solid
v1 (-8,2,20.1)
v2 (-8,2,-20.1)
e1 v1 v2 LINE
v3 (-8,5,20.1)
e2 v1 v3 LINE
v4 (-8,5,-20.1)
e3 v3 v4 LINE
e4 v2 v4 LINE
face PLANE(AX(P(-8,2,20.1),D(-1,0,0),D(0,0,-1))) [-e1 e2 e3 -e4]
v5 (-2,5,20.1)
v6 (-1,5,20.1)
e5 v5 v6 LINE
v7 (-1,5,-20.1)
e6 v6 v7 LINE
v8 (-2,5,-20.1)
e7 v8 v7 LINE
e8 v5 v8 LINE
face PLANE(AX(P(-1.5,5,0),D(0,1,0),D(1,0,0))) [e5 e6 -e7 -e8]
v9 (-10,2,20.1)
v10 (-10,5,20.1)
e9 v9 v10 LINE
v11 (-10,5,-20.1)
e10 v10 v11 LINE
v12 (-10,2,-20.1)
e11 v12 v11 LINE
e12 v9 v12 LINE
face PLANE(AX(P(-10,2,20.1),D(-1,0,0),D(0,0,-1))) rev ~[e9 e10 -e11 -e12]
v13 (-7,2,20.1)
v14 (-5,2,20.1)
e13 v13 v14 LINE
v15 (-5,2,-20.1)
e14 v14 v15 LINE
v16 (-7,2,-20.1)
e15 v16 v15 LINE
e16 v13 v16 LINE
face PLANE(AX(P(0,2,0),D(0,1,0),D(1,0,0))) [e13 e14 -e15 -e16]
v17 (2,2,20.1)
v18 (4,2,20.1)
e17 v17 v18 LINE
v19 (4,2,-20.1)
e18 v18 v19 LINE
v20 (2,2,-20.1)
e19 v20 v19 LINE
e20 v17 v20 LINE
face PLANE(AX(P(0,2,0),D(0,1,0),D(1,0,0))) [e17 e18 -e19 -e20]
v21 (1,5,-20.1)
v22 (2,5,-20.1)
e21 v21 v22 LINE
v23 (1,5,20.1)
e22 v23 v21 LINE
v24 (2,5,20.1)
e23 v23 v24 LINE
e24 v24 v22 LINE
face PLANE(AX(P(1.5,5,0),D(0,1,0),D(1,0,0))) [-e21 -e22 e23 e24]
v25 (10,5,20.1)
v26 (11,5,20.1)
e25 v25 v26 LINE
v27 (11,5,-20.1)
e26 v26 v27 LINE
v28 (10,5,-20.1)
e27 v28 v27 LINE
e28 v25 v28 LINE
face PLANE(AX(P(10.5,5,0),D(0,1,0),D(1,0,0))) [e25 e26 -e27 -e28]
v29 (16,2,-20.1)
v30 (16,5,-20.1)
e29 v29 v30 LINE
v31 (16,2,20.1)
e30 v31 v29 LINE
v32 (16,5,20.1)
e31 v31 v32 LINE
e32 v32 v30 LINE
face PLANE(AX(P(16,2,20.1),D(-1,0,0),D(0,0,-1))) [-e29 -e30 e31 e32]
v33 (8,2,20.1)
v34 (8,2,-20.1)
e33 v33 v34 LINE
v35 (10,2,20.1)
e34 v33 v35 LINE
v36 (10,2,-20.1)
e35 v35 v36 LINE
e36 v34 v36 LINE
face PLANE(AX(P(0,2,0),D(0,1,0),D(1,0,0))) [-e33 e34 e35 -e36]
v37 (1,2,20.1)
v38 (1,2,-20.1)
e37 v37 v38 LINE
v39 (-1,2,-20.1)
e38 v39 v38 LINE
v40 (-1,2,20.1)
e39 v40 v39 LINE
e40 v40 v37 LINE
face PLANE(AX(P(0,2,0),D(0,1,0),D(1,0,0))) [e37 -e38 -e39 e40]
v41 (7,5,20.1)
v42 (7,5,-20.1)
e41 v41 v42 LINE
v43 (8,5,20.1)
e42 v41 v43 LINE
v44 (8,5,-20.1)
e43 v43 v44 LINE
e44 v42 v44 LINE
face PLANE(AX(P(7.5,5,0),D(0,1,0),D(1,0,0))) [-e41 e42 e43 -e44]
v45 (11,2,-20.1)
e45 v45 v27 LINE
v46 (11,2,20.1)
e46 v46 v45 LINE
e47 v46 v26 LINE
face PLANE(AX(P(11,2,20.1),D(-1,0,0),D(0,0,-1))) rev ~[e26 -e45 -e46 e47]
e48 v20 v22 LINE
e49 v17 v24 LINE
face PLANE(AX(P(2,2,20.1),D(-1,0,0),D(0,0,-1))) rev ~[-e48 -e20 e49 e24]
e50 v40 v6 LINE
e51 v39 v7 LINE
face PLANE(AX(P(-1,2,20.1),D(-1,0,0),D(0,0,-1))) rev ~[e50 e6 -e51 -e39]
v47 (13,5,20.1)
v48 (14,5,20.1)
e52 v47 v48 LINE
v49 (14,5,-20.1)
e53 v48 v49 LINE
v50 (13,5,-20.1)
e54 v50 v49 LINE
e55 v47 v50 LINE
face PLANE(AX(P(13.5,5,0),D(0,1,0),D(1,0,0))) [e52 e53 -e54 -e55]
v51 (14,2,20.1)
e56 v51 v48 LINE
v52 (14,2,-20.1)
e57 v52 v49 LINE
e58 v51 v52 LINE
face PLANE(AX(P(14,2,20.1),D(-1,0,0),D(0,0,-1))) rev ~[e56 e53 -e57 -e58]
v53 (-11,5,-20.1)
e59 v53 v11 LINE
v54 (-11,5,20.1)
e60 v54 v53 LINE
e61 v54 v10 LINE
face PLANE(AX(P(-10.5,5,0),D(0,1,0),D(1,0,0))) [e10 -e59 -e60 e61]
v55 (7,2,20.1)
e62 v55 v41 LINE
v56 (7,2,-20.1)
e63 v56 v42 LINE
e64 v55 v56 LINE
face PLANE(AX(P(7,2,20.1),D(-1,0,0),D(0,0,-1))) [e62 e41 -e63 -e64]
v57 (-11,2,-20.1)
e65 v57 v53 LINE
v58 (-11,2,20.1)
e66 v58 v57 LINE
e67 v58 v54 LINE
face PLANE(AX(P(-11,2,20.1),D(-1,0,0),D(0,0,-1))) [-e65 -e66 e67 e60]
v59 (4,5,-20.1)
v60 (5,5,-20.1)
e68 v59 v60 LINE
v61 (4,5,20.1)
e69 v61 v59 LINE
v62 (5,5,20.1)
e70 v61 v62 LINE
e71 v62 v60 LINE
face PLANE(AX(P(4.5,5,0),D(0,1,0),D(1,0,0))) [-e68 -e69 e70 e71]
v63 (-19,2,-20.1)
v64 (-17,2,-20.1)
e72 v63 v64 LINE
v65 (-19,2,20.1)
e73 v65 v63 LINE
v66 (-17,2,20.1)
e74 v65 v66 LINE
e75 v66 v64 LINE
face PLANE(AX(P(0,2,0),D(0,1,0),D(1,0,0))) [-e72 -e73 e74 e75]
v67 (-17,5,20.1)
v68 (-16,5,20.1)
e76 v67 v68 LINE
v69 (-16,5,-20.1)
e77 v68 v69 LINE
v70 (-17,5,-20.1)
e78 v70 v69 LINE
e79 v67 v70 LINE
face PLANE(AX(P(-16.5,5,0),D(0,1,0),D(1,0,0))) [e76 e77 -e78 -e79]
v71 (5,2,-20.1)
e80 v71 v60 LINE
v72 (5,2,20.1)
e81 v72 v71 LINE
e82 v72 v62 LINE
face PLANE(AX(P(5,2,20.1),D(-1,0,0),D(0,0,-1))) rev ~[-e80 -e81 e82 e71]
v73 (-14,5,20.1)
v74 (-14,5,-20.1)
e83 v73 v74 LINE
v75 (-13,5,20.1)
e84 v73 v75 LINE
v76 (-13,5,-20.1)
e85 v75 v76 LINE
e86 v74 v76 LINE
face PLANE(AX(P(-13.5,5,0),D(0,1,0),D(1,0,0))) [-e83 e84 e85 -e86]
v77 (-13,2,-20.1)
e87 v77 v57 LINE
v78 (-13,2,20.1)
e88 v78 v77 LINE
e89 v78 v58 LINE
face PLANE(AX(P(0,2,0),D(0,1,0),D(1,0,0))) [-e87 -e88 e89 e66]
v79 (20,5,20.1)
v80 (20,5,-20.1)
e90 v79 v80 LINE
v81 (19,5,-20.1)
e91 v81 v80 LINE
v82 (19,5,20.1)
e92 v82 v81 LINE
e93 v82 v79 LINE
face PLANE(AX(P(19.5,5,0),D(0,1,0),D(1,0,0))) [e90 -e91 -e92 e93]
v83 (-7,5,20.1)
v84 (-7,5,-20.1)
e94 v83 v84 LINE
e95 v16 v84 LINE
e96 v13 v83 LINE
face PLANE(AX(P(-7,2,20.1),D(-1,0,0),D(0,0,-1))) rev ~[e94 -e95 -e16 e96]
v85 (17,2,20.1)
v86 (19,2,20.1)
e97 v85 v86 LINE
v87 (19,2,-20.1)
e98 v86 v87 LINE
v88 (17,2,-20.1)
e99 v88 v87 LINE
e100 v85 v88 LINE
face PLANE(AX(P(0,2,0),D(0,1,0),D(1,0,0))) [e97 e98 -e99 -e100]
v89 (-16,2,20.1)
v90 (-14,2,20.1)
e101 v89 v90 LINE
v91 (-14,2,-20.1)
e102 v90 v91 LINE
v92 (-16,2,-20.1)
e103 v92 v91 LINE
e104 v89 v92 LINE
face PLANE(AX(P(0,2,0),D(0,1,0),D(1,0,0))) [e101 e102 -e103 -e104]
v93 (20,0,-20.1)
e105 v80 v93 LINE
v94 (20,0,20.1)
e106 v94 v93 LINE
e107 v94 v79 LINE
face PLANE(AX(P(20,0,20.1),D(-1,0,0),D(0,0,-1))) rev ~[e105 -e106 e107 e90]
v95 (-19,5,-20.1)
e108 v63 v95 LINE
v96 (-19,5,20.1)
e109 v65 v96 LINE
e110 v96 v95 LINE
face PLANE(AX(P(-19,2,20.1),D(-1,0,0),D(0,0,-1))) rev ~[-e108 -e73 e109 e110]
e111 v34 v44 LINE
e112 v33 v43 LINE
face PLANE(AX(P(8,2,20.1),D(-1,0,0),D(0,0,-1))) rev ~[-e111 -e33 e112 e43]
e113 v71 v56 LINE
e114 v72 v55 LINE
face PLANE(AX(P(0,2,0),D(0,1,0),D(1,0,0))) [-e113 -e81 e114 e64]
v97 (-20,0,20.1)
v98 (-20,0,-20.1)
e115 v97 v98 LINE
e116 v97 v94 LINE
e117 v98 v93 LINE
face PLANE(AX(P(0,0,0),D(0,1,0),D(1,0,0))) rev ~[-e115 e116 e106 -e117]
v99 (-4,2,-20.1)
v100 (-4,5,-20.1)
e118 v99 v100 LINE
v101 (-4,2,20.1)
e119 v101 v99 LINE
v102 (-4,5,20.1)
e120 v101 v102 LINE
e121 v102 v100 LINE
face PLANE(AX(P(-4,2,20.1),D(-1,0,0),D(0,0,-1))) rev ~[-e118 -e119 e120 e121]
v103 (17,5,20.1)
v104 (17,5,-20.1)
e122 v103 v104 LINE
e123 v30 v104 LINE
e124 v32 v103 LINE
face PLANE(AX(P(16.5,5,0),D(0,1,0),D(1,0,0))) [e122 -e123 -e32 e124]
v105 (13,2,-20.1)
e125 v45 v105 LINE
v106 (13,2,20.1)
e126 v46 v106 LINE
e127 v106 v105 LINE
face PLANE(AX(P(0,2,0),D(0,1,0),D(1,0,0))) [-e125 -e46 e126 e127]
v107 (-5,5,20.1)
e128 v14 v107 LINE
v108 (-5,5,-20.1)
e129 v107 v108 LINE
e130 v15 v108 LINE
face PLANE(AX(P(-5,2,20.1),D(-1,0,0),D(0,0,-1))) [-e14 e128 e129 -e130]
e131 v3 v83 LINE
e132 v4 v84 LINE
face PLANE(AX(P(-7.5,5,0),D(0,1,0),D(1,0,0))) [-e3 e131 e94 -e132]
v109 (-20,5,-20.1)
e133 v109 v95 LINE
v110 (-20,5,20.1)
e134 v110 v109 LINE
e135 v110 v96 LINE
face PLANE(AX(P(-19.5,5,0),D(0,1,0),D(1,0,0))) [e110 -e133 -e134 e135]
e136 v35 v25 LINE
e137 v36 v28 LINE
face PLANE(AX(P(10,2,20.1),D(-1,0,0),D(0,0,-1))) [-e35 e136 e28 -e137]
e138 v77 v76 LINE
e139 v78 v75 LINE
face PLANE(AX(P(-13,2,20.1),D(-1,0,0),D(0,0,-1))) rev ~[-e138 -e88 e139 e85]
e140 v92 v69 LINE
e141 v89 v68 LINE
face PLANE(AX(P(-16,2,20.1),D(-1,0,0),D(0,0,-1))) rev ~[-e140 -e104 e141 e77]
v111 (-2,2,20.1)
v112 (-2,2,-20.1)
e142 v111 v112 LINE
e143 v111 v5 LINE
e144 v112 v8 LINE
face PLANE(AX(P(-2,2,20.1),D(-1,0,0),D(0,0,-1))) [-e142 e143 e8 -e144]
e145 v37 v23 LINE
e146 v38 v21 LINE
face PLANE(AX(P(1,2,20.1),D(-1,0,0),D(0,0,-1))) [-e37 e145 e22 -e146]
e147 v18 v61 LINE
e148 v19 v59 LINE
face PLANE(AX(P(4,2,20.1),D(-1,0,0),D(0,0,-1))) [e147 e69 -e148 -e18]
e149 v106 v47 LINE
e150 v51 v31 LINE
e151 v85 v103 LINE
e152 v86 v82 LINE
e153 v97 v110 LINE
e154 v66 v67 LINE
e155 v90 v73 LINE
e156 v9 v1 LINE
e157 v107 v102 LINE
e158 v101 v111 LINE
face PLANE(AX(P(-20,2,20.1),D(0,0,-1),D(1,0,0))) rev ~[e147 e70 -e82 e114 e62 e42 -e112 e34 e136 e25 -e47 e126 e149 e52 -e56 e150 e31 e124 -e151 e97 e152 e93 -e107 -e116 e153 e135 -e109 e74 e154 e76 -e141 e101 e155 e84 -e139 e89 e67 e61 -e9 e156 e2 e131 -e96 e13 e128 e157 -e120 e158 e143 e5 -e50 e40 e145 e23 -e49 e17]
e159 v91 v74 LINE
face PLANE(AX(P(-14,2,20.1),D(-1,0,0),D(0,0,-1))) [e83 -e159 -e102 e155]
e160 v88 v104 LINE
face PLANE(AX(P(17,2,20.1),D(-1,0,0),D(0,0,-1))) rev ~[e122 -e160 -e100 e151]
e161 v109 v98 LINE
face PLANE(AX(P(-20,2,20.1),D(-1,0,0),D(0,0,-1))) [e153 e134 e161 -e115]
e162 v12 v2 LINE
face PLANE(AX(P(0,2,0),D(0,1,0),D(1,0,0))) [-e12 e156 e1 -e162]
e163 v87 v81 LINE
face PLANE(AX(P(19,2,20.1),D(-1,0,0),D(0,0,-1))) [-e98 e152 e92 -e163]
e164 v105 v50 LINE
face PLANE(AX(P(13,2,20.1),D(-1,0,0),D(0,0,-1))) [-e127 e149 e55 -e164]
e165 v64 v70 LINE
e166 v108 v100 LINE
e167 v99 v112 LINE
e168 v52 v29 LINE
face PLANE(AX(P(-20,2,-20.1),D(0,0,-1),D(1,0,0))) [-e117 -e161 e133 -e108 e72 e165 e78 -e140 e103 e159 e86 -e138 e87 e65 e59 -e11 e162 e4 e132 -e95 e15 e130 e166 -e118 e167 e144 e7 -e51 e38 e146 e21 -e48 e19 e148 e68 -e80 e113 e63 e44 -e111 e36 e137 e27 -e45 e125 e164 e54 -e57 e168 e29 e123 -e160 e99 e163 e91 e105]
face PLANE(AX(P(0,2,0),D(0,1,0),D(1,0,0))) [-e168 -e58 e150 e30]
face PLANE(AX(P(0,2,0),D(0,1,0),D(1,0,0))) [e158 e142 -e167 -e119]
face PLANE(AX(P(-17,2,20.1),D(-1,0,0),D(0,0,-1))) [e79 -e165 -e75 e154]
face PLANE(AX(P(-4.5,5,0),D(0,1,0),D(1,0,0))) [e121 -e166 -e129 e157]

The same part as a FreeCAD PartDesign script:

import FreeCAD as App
import Part
import Sketcher
from FreeCAD import Vector

doc = App.newDocument("Part")
body = doc.addObject("PartDesign::Body", "Body")

# Sketch on XZ plane
sketch1 = body.newObject("Sketcher::SketchObject", "Sketch")
sketch1.AttachmentSupport = (doc.getObject("XZ_Plane"), [""])
sketch1.MapMode = "FlatFace"
sketch1.addGeometry([
    Part.LineSegment(Vector(-20, -20, 0), Vector(-20, 20, 0)),
    Part.LineSegment(Vector(-20, 20, 0), Vector(20, 20, 0)),
    Part.LineSegment(Vector(20, 20, 0), Vector(20, -20, 0)),
    Part.LineSegment(Vector(20, -20, 0), Vector(-20, -20, 0)),
], False)
sketch1.addConstraint([
    Sketcher.Constraint("Coincident", 0, 2, 1, 1),
    Sketcher.Constraint("Coincident", 1, 2, 2, 1),
    Sketcher.Constraint("Coincident", 2, 2, 3, 1),
    Sketcher.Constraint("Coincident", 3, 2, 0, 1),
    Sketcher.Constraint("Vertical", 0),
    Sketcher.Constraint("Horizontal", 1),
    Sketcher.Constraint("Vertical", 2),
    Sketcher.Constraint("Horizontal", 3),
    Sketcher.Constraint("Symmetric", 0, 2, 2, 2, -1, 1),
    Sketcher.Constraint("DistanceX", 1, 1, 1, 2, 40.0),
    Sketcher.Constraint("DistanceY", 0, 1, 0, 2, 40.2),
])
pad1 = body.newObject("PartDesign::Pad", "Pad")
pad1.Profile = sketch1
pad1.Length = 2
pad1.Reversed = True

# Sketch on XZ plane
sketch2 = body.newObject("Sketcher::SketchObject", "Sketch001")
sketch2.AttachmentSupport = (doc.getObject("XZ_Plane"), [""])
sketch2.MapMode = "FlatFace"
sketch2.AttachmentOffset = App.Placement(Vector(0, 0, -2), App.Rotation())
sketch2.addGeometry([
    Part.LineSegment(Vector(-20, -20.1, 0), Vector(-20, 20.1, 0)),  # 0
    Part.LineSegment(Vector(-20, 20.1, 0), Vector(-19, 20.1, 0)),  # 1
    Part.LineSegment(Vector(-19, 20.1, 0), Vector(-19, -20.1, 0)),  # 2
    Part.LineSegment(Vector(-19, -20.1, 0), Vector(-20, -20.1, 0)),  # 3
    Part.LineSegment(Vector(-17, -20.1, 0), Vector(-17, 20.1, 0)),  # 4
    Part.LineSegment(Vector(-17, 20.1, 0), Vector(-16, 20.1, 0)),  # 5
    Part.LineSegment(Vector(-16, 20.1, 0), Vector(-16, -20.1, 0)),  # 6
    Part.LineSegment(Vector(-16, -20.1, 0), Vector(-17, -20.1, 0)),  # 7
    Part.LineSegment(Vector(-14, -20.1, 0), Vector(-14, 20.1, 0)),  # 8
    Part.LineSegment(Vector(-14, 20.1, 0), Vector(-13, 20.1, 0)),  # 9
    Part.LineSegment(Vector(-13, 20.1, 0), Vector(-13, -20.1, 0)),  # 10
    Part.LineSegment(Vector(-13, -20.1, 0), Vector(-14, -20.1, 0)),  # 11
    Part.LineSegment(Vector(-11, -20.1, 0), Vector(-11, 20.1, 0)),  # 12
    Part.LineSegment(Vector(-11, 20.1, 0), Vector(-10, 20.1, 0)),  # 13
    Part.LineSegment(Vector(-10, 20.1, 0), Vector(-10, -20.1, 0)),  # 14
    Part.LineSegment(Vector(-10, -20.1, 0), Vector(-11, -20.1, 0)),  # 15
    Part.LineSegment(Vector(-8, -20.1, 0), Vector(-8, 20.1, 0)),  # 16
    Part.LineSegment(Vector(-8, 20.1, 0), Vector(-7, 20.1, 0)),  # 17
    Part.LineSegment(Vector(-7, 20.1, 0), Vector(-7, -20.1, 0)),  # 18
    Part.LineSegment(Vector(-7, -20.1, 0), Vector(-8, -20.1, 0)),  # 19
    Part.LineSegment(Vector(-5, -20.1, 0), Vector(-5, 20.1, 0)),  # 20
    Part.LineSegment(Vector(-5, 20.1, 0), Vector(-4, 20.1, 0)),  # 21
    Part.LineSegment(Vector(-4, 20.1, 0), Vector(-4, -20.1, 0)),  # 22
    Part.LineSegment(Vector(-4, -20.1, 0), Vector(-5, -20.1, 0)),  # 23
    Part.LineSegment(Vector(-2, -20.1, 0), Vector(-2, 20.1, 0)),  # 24
    Part.LineSegment(Vector(-2, 20.1, 0), Vector(-1, 20.1, 0)),  # 25
    Part.LineSegment(Vector(-1, 20.1, 0), Vector(-1, -20.1, 0)),  # 26
    Part.LineSegment(Vector(-1, -20.1, 0), Vector(-2, -20.1, 0)),  # 27
    Part.LineSegment(Vector(1, -20.1, 0), Vector(1, 20.1, 0)),  # 28
    Part.LineSegment(Vector(1, 20.1, 0), Vector(2, 20.1, 0)),  # 29
    Part.LineSegment(Vector(2, 20.1, 0), Vector(2, -20.1, 0)),  # 30
    Part.LineSegment(Vector(2, -20.1, 0), Vector(1, -20.1, 0)),  # 31
    Part.LineSegment(Vector(4, -20.1, 0), Vector(4, 20.1, 0)),  # 32
    Part.LineSegment(Vector(4, 20.1, 0), Vector(5, 20.1, 0)),  # 33
    Part.LineSegment(Vector(5, 20.1, 0), Vector(5, -20.1, 0)),  # 34
    Part.LineSegment(Vector(5, -20.1, 0), Vector(4, -20.1, 0)),  # 35
    Part.LineSegment(Vector(7, -20.1, 0), Vector(7, 20.1, 0)),  # 36
    Part.LineSegment(Vector(7, 20.1, 0), Vector(8, 20.1, 0)),  # 37
    Part.LineSegment(Vector(8, 20.1, 0), Vector(8, -20.1, 0)),  # 38
    Part.LineSegment(Vector(8, -20.1, 0), Vector(7, -20.1, 0)),  # 39
    Part.LineSegment(Vector(10, -20.1, 0), Vector(10, 20.1, 0)),  # 40
    Part.LineSegment(Vector(10, 20.1, 0), Vector(11, 20.1, 0)),  # 41
    Part.LineSegment(Vector(11, 20.1, 0), Vector(11, -20.1, 0)),  # 42
    Part.LineSegment(Vector(11, -20.1, 0), Vector(10, -20.1, 0)),  # 43
    Part.LineSegment(Vector(13, -20.1, 0), Vector(13, 20.1, 0)),  # 44
    Part.LineSegment(Vector(13, 20.1, 0), Vector(14, 20.1, 0)),  # 45
    Part.LineSegment(Vector(14, 20.1, 0), Vector(14, -20.1, 0)),  # 46
    Part.LineSegment(Vector(14, -20.1, 0), Vector(13, -20.1, 0)),  # 47
    Part.LineSegment(Vector(16, -20.1, 0), Vector(16, 20.1, 0)),  # 48
    Part.LineSegment(Vector(16, 20.1, 0), Vector(17, 20.1, 0)),  # 49
    Part.LineSegment(Vector(17, 20.1, 0), Vector(17, -20.1, 0)),  # 50
    Part.LineSegment(Vector(17, -20.1, 0), Vector(16, -20.1, 0)),  # 51
    Part.LineSegment(Vector(19, -20.1, 0), Vector(19, 20.1, 0)),  # 52
    Part.LineSegment(Vector(19, 20.1, 0), Vector(20, 20.1, 0)),  # 53
    Part.LineSegment(Vector(20, 20.1, 0), Vector(20, -20.1, 0)),  # 54
    Part.LineSegment(Vector(20, -20.1, 0), Vector(19, -20.1, 0)),  # 55
], False)
sketch2.addConstraint([
    Sketcher.Constraint("Coincident", 0, 2, 1, 1),
    Sketcher.Constraint("Coincident", 1, 2, 2, 1),
    Sketcher.Constraint("Coincident", 2, 2, 3, 1),
    Sketcher.Constraint("Coincident", 3, 2, 0, 1),
    Sketcher.Constraint("Coincident", 4, 2, 5, 1),
    Sketcher.Constraint("Coincident", 5, 2, 6, 1),
    Sketcher.Constraint("Coincident", 6, 2, 7, 1),
    Sketcher.Constraint("Coincident", 7, 2, 4, 1),
    Sketcher.Constraint("Coincident", 8, 2, 9, 1),
    Sketcher.Constraint("Coincident", 9, 2, 10, 1),
    Sketcher.Constraint("Coincident", 10, 2, 11, 1),
    Sketcher.Constraint("Coincident", 11, 2, 8, 1),
    Sketcher.Constraint("Coincident", 12, 2, 13, 1),
    Sketcher.Constraint("Coincident", 13, 2, 14, 1),
    Sketcher.Constraint("Coincident", 14, 2, 15, 1),
    Sketcher.Constraint("Coincident", 15, 2, 12, 1),
    Sketcher.Constraint("Coincident", 16, 2, 17, 1),
    Sketcher.Constraint("Coincident", 17, 2, 18, 1),
    Sketcher.Constraint("Coincident", 18, 2, 19, 1),
    Sketcher.Constraint("Coincident", 19, 2, 16, 1),
    Sketcher.Constraint("Coincident", 20, 2, 21, 1),
    Sketcher.Constraint("Coincident", 21, 2, 22, 1),
    Sketcher.Constraint("Coincident", 22, 2, 23, 1),
    Sketcher.Constraint("Coincident", 23, 2, 20, 1),
    Sketcher.Constraint("Coincident", 24, 2, 25, 1),
    Sketcher.Constraint("Coincident", 25, 2, 26, 1),
    Sketcher.Constraint("Coincident", 26, 2, 27, 1),
    Sketcher.Constraint("Coincident", 27, 2, 24, 1),
    Sketcher.Constraint("Coincident", 28, 2, 29, 1),
    Sketcher.Constraint("Coincident", 29, 2, 30, 1),
    Sketcher.Constraint("Coincident", 30, 2, 31, 1),
    Sketcher.Constraint("Coincident", 31, 2, 28, 1),
    Sketcher.Constraint("Coincident", 32, 2, 33, 1),
    Sketcher.Constraint("Coincident", 33, 2, 34, 1),
    Sketcher.Constraint("Coincident", 34, 2, 35, 1),
    Sketcher.Constraint("Coincident", 35, 2, 32, 1),
    Sketcher.Constraint("Coincident", 36, 2, 37, 1),
    Sketcher.Constraint("Coincident", 37, 2, 38, 1),
    Sketcher.Constraint("Coincident", 38, 2, 39, 1),
    Sketcher.Constraint("Coincident", 39, 2, 36, 1),
    Sketcher.Constraint("Coincident", 40, 2, 41, 1),
    Sketcher.Constraint("Coincident", 41, 2, 42, 1),
    Sketcher.Constraint("Coincident", 42, 2, 43, 1),
    Sketcher.Constraint("Coincident", 43, 2, 40, 1),
    Sketcher.Constraint("Coincident", 44, 2, 45, 1),
    Sketcher.Constraint("Coincident", 45, 2, 46, 1),
    Sketcher.Constraint("Coincident", 46, 2, 47, 1),
    Sketcher.Constraint("Coincident", 47, 2, 44, 1),
    Sketcher.Constraint("Coincident", 48, 2, 49, 1),
    Sketcher.Constraint("Coincident", 49, 2, 50, 1),
    Sketcher.Constraint("Coincident", 50, 2, 51, 1),
    Sketcher.Constraint("Coincident", 51, 2, 48, 1),
    Sketcher.Constraint("Coincident", 52, 2, 53, 1),
    Sketcher.Constraint("Coincident", 53, 2, 54, 1),
    Sketcher.Constraint("Coincident", 54, 2, 55, 1),
    Sketcher.Constraint("Coincident", 55, 2, 52, 1),
    Sketcher.Constraint("Vertical", 0),
    Sketcher.Constraint("Horizontal", 1),
    Sketcher.Constraint("Vertical", 2),
    Sketcher.Constraint("Horizontal", 3),
    Sketcher.Constraint("Vertical", 4),
    Sketcher.Constraint("Horizontal", 5),
    Sketcher.Constraint("Vertical", 6),
    Sketcher.Constraint("Horizontal", 7),
    Sketcher.Constraint("Vertical", 8),
    Sketcher.Constraint("Horizontal", 9),
    Sketcher.Constraint("Vertical", 10),
    Sketcher.Constraint("Horizontal", 11),
    Sketcher.Constraint("Vertical", 12),
    Sketcher.Constraint("Horizontal", 13),
    Sketcher.Constraint("Vertical", 14),
    Sketcher.Constraint("Horizontal", 15),
    Sketcher.Constraint("Vertical", 16),
    Sketcher.Constraint("Horizontal", 17),
    Sketcher.Constraint("Vertical", 18),
    Sketcher.Constraint("Horizontal", 19),
    Sketcher.Constraint("Vertical", 20),
    Sketcher.Constraint("Horizontal", 21),
    Sketcher.Constraint("Vertical", 22),
    Sketcher.Constraint("Horizontal", 23),
    Sketcher.Constraint("Vertical", 24),
    Sketcher.Constraint("Horizontal", 25),
    Sketcher.Constraint("Vertical", 26),
    Sketcher.Constraint("Horizontal", 27),
    Sketcher.Constraint("Vertical", 28),
    Sketcher.Constraint("Horizontal", 29),
    Sketcher.Constraint("Vertical", 30),
    Sketcher.Constraint("Horizontal", 31),
    Sketcher.Constraint("Vertical", 32),
    Sketcher.Constraint("Horizontal", 33),
    Sketcher.Constraint("Vertical", 34),
    Sketcher.Constraint("Horizontal", 35),
    Sketcher.Constraint("Vertical", 36),
    Sketcher.Constraint("Horizontal", 37),
    Sketcher.Constraint("Vertical", 38),
    Sketcher.Constraint("Horizontal", 39),
    Sketcher.Constraint("Vertical", 40),
    Sketcher.Constraint("Horizontal", 41),
    Sketcher.Constraint("Vertical", 42),
    Sketcher.Constraint("Horizontal", 43),
    Sketcher.Constraint("Vertical", 44),
    Sketcher.Constraint("Horizontal", 45),
    Sketcher.Constraint("Vertical", 46),
    Sketcher.Constraint("Horizontal", 47),
    Sketcher.Constraint("Vertical", 48),
    Sketcher.Constraint("Horizontal", 49),
    Sketcher.Constraint("Vertical", 50),
    Sketcher.Constraint("Horizontal", 51),
    Sketcher.Constraint("Vertical", 52),
    Sketcher.Constraint("Horizontal", 53),
    Sketcher.Constraint("Vertical", 54),
    Sketcher.Constraint("Horizontal", 55),
    Sketcher.Constraint("Symmetric", 26, 2, 28, 2, -1, 1),
    Sketcher.Constraint("Symmetric", 24, 2, 30, 2, -1, 1),
    Sketcher.Constraint("Symmetric", 22, 2, 32, 2, -1, 1),
    Sketcher.Constraint("Symmetric", 20, 2, 34, 2, -1, 1),
    Sketcher.Constraint("Symmetric", 18, 2, 36, 2, -1, 1),
    Sketcher.Constraint("Symmetric", 16, 2, 38, 2, -1, 1),
    Sketcher.Constraint("Symmetric", 14, 2, 40, 2, -1, 1),
    Sketcher.Constraint("Symmetric", 12, 2, 42, 2, -1, 1),
    Sketcher.Constraint("Symmetric", 10, 2, 44, 2, -1, 1),
    Sketcher.Constraint("Symmetric", 8, 2, 46, 2, -1, 1),
    Sketcher.Constraint("Symmetric", 6, 2, 48, 2, -1, 1),
    Sketcher.Constraint("Symmetric", 4, 2, 50, 2, -1, 1),
    Sketcher.Constraint("Symmetric", 2, 2, 52, 2, -1, 1),
    Sketcher.Constraint("Symmetric", 0, 2, 54, 2, -1, 1),
    Sketcher.Constraint("Horizontal", 1, 2, 4, 2),
    Sketcher.Constraint("Horizontal", 3, 2, 6, 2),
    Sketcher.Constraint("Horizontal", 5, 2, 8, 2),
    Sketcher.Constraint("Horizontal", 7, 2, 10, 2),
    Sketcher.Constraint("Horizontal", 9, 2, 12, 2),
    Sketcher.Constraint("Horizontal", 11, 2, 14, 2),
    Sketcher.Constraint("Horizontal", 13, 2, 16, 2),
    Sketcher.Constraint("Horizontal", 15, 2, 18, 2),
    Sketcher.Constraint("Horizontal", 17, 2, 20, 2),
    Sketcher.Constraint("Horizontal", 19, 2, 22, 2),
    Sketcher.Constraint("Horizontal", 21, 2, 24, 2),
    Sketcher.Constraint("Horizontal", 23, 2, 26, 2),
    Sketcher.Constraint("Horizontal", 25, 2, 28, 2),
    Sketcher.Constraint("Equal", 3, 5),
    Sketcher.Constraint("Equal", 7, 9),
    Sketcher.Constraint("Equal", 11, 13),
    Sketcher.Constraint("Equal", 15, 17),
    Sketcher.Constraint("Equal", 19, 21),
    Sketcher.Constraint("Equal", 23, 25),
    Sketcher.Constraint("DistanceX", 1, 1, 1, 2, 1.0),
    Sketcher.Constraint("DistanceY", 0, 1, 0, 2, 40.2),
    Sketcher.Constraint("DistanceX", 0, 2, -1, 1, 20.0),
    Sketcher.Constraint("DistanceX", 4, 2, -1, 1, 17.0),
    Sketcher.Constraint("DistanceX", 8, 2, -1, 1, 14.0),
    Sketcher.Constraint("DistanceX", 12, 2, -1, 1, 11.0),
    Sketcher.Constraint("DistanceX", 16, 2, -1, 1, 8.0),
    Sketcher.Constraint("DistanceX", 20, 2, -1, 1, 5.0),
    Sketcher.Constraint("DistanceX", 24, 2, -1, 1, 2.0),
])
pad2 = body.newObject("PartDesign::Pad", "Pad001")
pad2.Profile = sketch2
pad2.Length = 3
pad2.Reversed = True

doc.recompute()
